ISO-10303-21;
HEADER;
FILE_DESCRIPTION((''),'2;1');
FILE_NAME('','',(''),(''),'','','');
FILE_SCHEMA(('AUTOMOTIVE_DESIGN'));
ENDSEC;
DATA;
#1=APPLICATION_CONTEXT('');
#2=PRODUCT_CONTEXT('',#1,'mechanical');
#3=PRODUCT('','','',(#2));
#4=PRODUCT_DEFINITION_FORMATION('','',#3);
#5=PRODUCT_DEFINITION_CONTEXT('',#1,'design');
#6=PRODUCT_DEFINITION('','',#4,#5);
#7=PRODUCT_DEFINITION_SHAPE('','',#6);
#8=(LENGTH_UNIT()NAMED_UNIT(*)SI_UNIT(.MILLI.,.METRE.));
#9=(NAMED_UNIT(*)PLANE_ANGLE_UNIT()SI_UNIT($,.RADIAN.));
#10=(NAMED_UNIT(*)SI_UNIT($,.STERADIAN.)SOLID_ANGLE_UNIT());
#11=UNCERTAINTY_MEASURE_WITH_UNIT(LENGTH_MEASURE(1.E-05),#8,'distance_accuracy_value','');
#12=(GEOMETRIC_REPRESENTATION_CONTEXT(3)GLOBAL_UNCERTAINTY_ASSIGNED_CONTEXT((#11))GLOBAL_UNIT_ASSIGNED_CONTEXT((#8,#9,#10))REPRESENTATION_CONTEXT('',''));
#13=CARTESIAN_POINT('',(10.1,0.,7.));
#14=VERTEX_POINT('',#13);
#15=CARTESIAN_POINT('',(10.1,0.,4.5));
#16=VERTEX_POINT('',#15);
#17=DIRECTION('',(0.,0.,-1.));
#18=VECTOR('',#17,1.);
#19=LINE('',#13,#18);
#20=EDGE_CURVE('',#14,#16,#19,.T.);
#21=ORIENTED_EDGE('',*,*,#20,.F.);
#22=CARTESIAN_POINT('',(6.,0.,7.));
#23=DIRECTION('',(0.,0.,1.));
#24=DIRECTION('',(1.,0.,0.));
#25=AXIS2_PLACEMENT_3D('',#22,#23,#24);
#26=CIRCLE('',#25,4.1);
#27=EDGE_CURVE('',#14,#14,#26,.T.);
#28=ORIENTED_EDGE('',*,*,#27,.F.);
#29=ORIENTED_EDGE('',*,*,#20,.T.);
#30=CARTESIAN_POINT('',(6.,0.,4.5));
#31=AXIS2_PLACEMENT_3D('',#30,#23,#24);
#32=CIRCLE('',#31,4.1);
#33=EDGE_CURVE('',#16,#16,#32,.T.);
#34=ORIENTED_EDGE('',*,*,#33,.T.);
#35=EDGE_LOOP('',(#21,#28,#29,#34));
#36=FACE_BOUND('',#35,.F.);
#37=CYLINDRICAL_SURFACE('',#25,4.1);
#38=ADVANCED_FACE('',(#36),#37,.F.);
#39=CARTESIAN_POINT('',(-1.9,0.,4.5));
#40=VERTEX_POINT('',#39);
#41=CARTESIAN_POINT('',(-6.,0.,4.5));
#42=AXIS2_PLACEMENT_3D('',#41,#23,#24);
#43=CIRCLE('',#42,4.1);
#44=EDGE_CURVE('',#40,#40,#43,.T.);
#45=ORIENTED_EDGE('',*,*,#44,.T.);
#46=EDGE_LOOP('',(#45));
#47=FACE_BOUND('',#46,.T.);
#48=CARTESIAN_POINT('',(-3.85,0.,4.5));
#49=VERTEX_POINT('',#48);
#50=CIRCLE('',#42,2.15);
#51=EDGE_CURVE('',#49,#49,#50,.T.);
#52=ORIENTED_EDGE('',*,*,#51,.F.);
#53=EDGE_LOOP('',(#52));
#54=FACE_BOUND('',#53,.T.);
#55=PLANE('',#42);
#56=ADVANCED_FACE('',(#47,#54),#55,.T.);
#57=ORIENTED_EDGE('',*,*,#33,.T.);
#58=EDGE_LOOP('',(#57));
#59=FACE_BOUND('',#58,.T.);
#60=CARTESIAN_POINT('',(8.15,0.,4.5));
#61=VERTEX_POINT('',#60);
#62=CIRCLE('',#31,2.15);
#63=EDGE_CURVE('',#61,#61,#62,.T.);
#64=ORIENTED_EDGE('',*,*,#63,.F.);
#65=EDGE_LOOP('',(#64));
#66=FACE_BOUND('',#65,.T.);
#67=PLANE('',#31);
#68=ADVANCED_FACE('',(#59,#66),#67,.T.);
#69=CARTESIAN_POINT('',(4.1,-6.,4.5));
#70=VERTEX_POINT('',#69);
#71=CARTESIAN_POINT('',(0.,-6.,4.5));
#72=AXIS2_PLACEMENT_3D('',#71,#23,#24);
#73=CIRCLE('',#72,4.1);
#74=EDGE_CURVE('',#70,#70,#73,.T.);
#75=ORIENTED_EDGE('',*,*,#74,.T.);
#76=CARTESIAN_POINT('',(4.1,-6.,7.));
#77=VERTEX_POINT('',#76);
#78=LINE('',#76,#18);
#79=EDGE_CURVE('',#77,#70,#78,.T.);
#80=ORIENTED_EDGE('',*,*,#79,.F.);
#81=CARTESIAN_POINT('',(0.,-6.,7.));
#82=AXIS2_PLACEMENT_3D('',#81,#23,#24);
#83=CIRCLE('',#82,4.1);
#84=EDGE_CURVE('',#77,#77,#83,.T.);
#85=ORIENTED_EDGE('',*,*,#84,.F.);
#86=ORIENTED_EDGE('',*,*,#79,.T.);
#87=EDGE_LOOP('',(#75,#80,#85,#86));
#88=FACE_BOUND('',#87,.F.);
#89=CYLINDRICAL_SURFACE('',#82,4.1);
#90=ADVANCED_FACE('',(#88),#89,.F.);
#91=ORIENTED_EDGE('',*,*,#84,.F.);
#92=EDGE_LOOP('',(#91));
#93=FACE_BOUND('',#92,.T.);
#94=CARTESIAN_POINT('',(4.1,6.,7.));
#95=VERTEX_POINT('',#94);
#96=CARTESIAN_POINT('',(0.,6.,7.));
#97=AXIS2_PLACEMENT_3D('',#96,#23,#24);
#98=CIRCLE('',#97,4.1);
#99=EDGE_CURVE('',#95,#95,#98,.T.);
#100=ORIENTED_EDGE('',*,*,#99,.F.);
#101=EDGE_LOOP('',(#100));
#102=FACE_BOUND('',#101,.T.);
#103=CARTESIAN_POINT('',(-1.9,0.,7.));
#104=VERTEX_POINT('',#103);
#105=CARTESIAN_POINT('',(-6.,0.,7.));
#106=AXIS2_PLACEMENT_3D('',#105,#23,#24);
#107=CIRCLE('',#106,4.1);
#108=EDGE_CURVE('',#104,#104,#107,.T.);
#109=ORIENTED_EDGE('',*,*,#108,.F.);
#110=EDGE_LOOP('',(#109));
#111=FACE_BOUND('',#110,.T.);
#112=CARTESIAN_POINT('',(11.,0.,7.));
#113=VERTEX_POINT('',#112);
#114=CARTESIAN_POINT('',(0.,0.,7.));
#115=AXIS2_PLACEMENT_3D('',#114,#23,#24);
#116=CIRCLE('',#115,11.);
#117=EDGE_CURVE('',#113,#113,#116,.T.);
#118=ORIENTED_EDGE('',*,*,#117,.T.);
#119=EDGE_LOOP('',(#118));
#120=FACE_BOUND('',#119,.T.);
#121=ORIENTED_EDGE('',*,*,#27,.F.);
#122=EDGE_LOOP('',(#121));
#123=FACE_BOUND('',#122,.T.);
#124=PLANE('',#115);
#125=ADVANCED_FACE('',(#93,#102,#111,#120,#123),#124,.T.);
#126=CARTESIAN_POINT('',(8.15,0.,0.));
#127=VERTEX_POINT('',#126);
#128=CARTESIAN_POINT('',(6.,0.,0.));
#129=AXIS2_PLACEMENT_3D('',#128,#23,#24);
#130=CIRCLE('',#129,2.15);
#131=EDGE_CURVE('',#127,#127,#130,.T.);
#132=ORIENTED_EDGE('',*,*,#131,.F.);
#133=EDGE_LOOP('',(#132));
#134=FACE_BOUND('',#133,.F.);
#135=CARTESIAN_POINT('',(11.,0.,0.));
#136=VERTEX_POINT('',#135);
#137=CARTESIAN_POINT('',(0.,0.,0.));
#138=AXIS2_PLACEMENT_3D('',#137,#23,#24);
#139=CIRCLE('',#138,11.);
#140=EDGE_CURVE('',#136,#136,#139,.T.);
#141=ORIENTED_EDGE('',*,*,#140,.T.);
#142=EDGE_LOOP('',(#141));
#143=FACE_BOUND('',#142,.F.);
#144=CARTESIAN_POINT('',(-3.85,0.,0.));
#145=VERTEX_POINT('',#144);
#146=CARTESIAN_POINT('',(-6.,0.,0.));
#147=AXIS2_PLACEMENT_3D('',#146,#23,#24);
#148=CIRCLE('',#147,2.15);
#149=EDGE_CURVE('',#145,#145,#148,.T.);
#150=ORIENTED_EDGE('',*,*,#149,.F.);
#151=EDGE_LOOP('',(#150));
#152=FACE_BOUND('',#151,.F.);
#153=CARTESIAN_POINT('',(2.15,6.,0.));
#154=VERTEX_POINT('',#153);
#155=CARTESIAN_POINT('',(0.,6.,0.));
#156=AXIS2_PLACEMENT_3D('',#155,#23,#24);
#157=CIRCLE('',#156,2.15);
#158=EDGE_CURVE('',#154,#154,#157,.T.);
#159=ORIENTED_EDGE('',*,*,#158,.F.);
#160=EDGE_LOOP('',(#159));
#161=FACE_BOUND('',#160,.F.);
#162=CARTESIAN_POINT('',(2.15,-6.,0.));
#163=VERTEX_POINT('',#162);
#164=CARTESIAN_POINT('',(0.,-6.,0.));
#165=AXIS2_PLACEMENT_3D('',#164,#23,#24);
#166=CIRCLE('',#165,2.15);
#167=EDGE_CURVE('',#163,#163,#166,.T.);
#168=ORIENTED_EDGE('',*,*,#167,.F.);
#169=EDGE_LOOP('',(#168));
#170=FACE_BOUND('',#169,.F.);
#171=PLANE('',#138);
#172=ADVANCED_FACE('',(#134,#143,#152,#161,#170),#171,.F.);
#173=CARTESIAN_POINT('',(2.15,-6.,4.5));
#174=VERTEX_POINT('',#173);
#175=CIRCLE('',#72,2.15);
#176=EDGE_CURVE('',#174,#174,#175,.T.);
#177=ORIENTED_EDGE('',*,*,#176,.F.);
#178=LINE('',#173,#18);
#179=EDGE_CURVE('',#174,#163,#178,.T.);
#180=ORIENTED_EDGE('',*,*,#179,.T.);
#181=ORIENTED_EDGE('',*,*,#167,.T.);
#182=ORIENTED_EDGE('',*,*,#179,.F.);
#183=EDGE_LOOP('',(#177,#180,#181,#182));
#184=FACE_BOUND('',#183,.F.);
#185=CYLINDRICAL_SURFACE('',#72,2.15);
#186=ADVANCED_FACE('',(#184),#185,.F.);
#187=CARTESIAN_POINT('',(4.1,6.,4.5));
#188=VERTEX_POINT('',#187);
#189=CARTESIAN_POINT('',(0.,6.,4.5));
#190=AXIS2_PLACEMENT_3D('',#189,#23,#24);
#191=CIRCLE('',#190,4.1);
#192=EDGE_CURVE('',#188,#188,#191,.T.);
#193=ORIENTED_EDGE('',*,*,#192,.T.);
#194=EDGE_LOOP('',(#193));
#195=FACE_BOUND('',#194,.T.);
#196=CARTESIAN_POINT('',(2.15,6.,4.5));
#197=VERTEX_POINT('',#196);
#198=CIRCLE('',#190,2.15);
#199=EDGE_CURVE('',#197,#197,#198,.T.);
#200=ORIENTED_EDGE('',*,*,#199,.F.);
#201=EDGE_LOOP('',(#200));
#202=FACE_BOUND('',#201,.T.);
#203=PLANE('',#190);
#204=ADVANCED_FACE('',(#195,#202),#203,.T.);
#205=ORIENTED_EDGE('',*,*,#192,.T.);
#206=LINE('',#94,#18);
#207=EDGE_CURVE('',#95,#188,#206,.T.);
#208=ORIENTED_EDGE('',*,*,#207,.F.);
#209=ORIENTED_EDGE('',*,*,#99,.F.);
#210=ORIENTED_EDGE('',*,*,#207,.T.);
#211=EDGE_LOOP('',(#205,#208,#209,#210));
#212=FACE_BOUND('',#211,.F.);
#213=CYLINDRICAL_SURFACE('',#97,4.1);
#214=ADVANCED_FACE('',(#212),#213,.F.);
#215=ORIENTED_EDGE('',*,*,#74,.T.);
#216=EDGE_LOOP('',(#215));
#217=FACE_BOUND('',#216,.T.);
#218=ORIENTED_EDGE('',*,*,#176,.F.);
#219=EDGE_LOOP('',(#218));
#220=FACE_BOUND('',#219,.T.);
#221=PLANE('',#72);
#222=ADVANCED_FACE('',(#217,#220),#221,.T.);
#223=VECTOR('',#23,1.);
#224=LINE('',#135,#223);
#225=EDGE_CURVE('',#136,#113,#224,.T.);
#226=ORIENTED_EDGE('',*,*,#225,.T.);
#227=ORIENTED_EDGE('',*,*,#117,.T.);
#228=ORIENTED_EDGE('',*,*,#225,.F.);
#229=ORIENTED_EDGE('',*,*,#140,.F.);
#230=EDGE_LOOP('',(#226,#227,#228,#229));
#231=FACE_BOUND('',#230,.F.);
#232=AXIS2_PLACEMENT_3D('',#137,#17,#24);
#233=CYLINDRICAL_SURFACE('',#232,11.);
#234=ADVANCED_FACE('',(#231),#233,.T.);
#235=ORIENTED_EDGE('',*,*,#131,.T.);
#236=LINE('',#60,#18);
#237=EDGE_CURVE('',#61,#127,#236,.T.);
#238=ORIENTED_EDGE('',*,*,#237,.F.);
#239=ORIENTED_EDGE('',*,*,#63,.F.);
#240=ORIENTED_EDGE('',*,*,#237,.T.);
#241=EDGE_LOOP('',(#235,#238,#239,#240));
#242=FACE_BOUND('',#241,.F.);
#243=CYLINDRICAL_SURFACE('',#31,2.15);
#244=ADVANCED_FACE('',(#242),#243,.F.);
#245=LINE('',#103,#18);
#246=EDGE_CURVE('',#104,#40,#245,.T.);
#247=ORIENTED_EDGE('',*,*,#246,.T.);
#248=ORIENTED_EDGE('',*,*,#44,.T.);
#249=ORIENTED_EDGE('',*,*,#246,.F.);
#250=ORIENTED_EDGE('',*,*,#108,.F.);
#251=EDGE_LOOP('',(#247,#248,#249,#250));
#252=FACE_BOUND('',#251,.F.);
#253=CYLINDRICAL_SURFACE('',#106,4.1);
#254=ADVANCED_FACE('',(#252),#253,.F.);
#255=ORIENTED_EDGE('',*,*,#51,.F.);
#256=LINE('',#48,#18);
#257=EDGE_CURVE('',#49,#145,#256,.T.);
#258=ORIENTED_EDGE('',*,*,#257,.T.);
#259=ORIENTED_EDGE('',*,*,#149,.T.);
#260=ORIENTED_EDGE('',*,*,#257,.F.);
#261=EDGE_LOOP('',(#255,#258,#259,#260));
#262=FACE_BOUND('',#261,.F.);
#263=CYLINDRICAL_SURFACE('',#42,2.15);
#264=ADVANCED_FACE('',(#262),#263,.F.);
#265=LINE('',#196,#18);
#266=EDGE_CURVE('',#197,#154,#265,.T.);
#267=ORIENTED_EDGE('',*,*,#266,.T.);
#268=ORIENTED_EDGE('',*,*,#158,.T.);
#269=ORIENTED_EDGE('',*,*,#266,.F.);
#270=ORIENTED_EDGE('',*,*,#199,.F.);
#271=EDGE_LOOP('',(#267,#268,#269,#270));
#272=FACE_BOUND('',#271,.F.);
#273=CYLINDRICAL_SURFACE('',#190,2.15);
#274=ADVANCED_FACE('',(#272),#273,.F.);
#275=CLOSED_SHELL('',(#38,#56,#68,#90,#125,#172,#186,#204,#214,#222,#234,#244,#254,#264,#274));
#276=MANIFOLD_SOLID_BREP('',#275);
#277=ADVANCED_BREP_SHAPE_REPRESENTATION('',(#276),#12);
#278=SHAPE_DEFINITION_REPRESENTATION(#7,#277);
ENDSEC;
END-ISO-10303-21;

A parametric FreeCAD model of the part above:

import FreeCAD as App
import Part
import Sketcher

V = App.Vector

doc = App.newDocument("Part")
body = doc.addObject("PartDesign::Body", "Body")

sketch1 = body.newObject("Sketcher::SketchObject", "Sketch")
sketch1.AttachmentSupport = (doc.getObject("XY_Plane"), [""])
sketch1.MapMode = "FlatFace"
sketch1.addGeometry(Part.Circle(V(0, 0, 0), V(0, 0, 1), 11), False)
sketch1.addConstraint([
    Sketcher.Constraint("Coincident", 0, 3, -1, 1),
    Sketcher.Constraint("Diameter", 0, 22.0),
])
pad1 = body.newObject("PartDesign::Pad", "Pad")
pad1.Profile = sketch1
pad1.Length = 7

sketch2 = body.newObject("Sketcher::SketchObject", "Sketch001")
sketch2.AttachmentSupport = (doc.getObject("XY_Plane"), [""])
sketch2.MapMode = "FlatFace"
sketch2.AttachmentOffset = App.Placement(V(0, 0, 7), App.Rotation())
sketch2.addGeometry([
    Part.Circle(V(0, 6, 0), V(0, 0, 1), 4.1),
    Part.Circle(V(6, 0, 0), V(0, 0, 1), 4.1),
    Part.Circle(V(0, -6, 0), V(0, 0, 1), 4.1),
    Part.Circle(V(-6, 0, 0), V(0, 0, 1), 4.1),
], False)
sketch2.addConstraint([
    Sketcher.Constraint("Equal", 0, 1),
    Sketcher.Constraint("Equal", 1, 2),
    Sketcher.Constraint("Equal", 2, 3),
    Sketcher.Constraint("Symmetric", 0, 3, 2, 3, -1, 1),
    Sketcher.Constraint("Symmetric", 1, 3, 3, 3, -1, 1),
    Sketcher.Constraint("PointOnObject", 0, 3, -2),
    Sketcher.Constraint("PointOnObject", 1, 3, -1),
    Sketcher.Constraint("Diameter", 0, 8.2),
    Sketcher.Constraint("DistanceY", -1, 1, 0, 3, 6.0),
    Sketcher.Constraint("DistanceX", -1, 1, 1, 3, 6.0),
])
pocket1 = body.newObject("PartDesign::Pocket", "Pocket")
pocket1.Profile = sketch2
pocket1.Length = 2.5

sketch3 = body.newObject("Sketcher::SketchObject", "Sketch002")
sketch3.AttachmentSupport = (doc.getObject("XY_Plane"), [""])
sketch3.MapMode = "FlatFace"
sketch3.AttachmentOffset = App.Placement(V(0, 0, 4.5), App.Rotation())
sketch3.addGeometry([
    Part.Circle(V(0, -6, 0), V(0, 0, 1), 2.15),
    Part.Circle(V(-6, 0, 0), V(0, 0, 1), 2.15),
    Part.Circle(V(0, 6, 0), V(0, 0, 1), 2.15),
    Part.Circle(V(6, 0, 0), V(0, 0, 1), 2.15),
], False)
sketch3.addConstraint([
    Sketcher.Constraint("Equal", 0, 1),
    Sketcher.Constraint("Equal", 1, 2),
    Sketcher.Constraint("Equal", 2, 3),
    Sketcher.Constraint("Symmetric", 0, 3, 2, 3, -1, 1),
    Sketcher.Constraint("Symmetric", 1, 3, 3, 3, -1, 1),
    Sketcher.Constraint("PointOnObject", 0, 3, -2),
    Sketcher.Constraint("PointOnObject", 1, 3, -1),
    Sketcher.Constraint("Diameter", 0, 4.3),
    Sketcher.Constraint("DistanceY", 0, 3, -1, 1, 6.0),
    Sketcher.Constraint("DistanceX", 1, 3, -1, 1, 6.0),
])
pocket2 = body.newObject("PartDesign::Pocket", "Pocket001")
pocket2.Profile = sketch3
pocket2.Length = 10

doc.recompute()
